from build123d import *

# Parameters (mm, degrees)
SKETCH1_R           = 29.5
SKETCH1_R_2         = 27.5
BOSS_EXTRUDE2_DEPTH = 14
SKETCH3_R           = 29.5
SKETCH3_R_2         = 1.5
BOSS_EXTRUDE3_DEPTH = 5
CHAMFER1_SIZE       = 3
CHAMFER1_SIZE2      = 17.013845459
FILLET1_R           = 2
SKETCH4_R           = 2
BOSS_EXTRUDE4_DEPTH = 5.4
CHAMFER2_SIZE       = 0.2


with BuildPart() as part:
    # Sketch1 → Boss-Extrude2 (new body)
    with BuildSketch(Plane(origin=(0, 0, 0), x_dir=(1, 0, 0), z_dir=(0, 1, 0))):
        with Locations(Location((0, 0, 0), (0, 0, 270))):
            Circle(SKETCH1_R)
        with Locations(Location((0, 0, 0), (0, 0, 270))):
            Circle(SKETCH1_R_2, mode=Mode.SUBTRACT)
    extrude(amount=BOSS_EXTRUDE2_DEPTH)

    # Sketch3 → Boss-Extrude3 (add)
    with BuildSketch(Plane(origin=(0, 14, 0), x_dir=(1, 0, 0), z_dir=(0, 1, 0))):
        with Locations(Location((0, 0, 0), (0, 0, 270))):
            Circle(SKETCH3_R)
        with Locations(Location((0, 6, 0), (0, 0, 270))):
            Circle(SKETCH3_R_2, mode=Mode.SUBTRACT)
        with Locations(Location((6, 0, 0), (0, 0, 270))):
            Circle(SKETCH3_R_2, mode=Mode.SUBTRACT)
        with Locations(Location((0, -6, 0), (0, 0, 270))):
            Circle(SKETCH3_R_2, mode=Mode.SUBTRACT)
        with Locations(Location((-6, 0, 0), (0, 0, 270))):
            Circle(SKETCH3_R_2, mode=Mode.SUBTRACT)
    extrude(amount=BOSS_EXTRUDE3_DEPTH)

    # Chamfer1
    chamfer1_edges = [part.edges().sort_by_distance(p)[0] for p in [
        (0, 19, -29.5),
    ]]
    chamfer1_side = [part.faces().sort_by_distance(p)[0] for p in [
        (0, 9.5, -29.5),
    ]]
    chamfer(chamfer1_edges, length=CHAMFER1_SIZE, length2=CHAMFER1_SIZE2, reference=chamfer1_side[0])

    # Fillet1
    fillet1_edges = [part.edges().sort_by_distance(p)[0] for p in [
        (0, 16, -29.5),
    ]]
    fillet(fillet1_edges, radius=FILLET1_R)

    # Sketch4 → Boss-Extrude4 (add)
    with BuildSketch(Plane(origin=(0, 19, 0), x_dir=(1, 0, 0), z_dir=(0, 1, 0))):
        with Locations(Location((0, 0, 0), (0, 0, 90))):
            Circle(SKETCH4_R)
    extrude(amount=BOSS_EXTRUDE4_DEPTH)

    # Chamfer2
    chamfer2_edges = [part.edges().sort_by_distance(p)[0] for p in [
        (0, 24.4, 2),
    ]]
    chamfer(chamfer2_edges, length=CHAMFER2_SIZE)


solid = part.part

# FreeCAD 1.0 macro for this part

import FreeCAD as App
import Part
import Sketcher
from FreeCAD import Vector


def edges_at(feature, points):
    """Names of the edges that pass closest to the given points."""
    edges = feature.Shape.Edges
    near = lambda p: min(range(len(edges)), key=lambda i: edges[i].distToShape(Part.Vertex(*p))[0])
    return sorted({f"Edge{near(p) + 1}" for p in points})

doc = App.newDocument("Part")
body = doc.addObject("PartDesign::Body", "Body")

sketch1 = body.newObject("Sketcher::SketchObject", "Sketch")
sketch1.AttachmentSupport = (doc.getObject("XZ_Plane"), [""])
sketch1.MapMode = "FlatFace"
sketch1.addGeometry([
    Part.Circle(Vector(0, 0, 0), Vector(0, 0, 1), 30),
    Part.Circle(Vector(0, 0, 0), Vector(0, 0, 1), 28),
], False)
sketch1.addConstraint([
    Sketcher.Constraint("Coincident", 0, 3, -1, 1),
    Sketcher.Constraint("Coincident", 1, 3, -1, 1),
    Sketcher.Constraint("Diameter", 0, 59.0),
    Sketcher.Constraint("Diameter", 1, 55.0),
])
pad1 = body.newObject("PartDesign::Pad", "Pad")
pad1.Profile = sketch1
pad1.Length = 14
pad1.Reversed = True

sketch2 = body.newObject("Sketcher::SketchObject", "Sketch001")
sketch2.AttachmentSupport = (doc.getObject("XZ_Plane"), [""])
sketch2.MapMode = "FlatFace"
sketch2.AttachmentOffset = App.Placement(Vector(0, 0, -14), App.Rotation())
sketch2.addGeometry([
    Part.Circle(Vector(0, 0, 0), Vector(0, 0, 1), 29.5),
    Part.Circle(Vector(0, -6, 0), Vector(0, 0, 1), 1.5),
    Part.Circle(Vector(-6, 0, 0), Vector(0, 0, 1), 1.5),
    Part.Circle(Vector(6, 0, 0), Vector(0, 0, 1), 1.5),
    Part.Circle(Vector(0, 6, 0), Vector(0, 0, 1), 1.5),
], False)
sketch2.addConstraint([
    Sketcher.Constraint("Coincident", 0, 3, -1, 1),
    Sketcher.Constraint("Equal", 1, 2),
    Sketcher.Constraint("Equal", 2, 3),
    Sketcher.Constraint("Equal", 3, 4),
    Sketcher.Constraint("Symmetric", 2, 3, 3, 3, -1, 1),
    Sketcher.Constraint("Symmetric", 1, 3, 4, 3, -1, 1),
    Sketcher.Constraint("PointOnObject", 1, 3, -2),
    Sketcher.Constraint("PointOnObject", 2, 3, -1),
    Sketcher.Constraint("Diameter", 0, 59.0),
    Sketcher.Constraint("Diameter", 1, 3.0),
    Sketcher.Constraint("DistanceY", 1, 3, -1, 1, 6.0),
    Sketcher.Constraint("DistanceX", 2, 3, -1, 1, 6.0),
])
pad2 = body.newObject("PartDesign::Pad", "Pad001")
pad2.Profile = sketch2
pad2.Length = 5
pad2.Reversed = True
doc.recompute()

chamfer = body.newObject("PartDesign::Chamfer", "Chamfer")
chamfer.Base = (pad2, edges_at(pad2, [(0, 19, -29.5)]))
chamfer.ChamferType = "Two distances"
chamfer.Size = 3
chamfer.Size2 = 17.013845
chamfer.FlipDirection = True
doc.recompute()

fillet = body.newObject("PartDesign::Fillet", "Fillet")
fillet.Base = (chamfer, edges_at(chamfer, [(0, 16, -29.5)]))
fillet.Radius = 2

sketch3 = body.newObject("Sketcher::SketchObject", "Sketch002")
sketch3.AttachmentSupport = (doc.getObject("XZ_Plane"), [""])
sketch3.MapMode = "FlatFace"
sketch3.AttachmentOffset = App.Placement(Vector(0, 0, -19), App.Rotation())
sketch3.addGeometry(Part.Circle(Vector(0, 0, 0), Vector(0, 0, 1), 2), False)
sketch3.addConstraint([
    Sketcher.Constraint("Coincident", 0, 3, -1, 1),
    Sketcher.Constraint("Diameter", 0, 4.0),
])
pad3 = body.newObject("PartDesign::Pad", "Pad002")
pad3.Profile = sketch3
pad3.Length = 5.4
pad3.Reversed = True
doc.recompute()

chamfer2 = body.newObject("PartDesign::Chamfer", "Chamfer001")
chamfer2.Base = (pad3, edges_at(pad3, [(0, 24.4, 2)]))
chamfer2.Size = 0.2

doc.recompute()
